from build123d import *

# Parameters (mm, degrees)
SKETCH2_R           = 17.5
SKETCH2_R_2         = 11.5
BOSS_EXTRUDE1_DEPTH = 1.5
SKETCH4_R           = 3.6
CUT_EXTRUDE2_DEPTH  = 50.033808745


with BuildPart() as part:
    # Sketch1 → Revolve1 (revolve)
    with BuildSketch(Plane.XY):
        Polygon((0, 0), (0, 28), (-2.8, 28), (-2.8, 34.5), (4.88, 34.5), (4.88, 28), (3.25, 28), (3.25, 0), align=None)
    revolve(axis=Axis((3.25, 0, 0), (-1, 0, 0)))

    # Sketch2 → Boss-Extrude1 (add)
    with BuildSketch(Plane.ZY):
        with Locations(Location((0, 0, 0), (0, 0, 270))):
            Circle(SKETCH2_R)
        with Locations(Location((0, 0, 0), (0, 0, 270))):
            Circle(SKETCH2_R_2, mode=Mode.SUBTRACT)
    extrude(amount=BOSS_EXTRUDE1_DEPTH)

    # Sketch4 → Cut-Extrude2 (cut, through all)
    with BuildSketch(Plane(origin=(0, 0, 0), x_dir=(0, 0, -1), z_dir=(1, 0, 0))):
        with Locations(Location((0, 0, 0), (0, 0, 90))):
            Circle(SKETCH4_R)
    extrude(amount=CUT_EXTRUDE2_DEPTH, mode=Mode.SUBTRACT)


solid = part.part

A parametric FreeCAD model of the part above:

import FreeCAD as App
import Part
import Sketcher

doc = App.newDocument("Part")
body = doc.addObject("PartDesign::Body", "Body")

# Sketch on XY plane
sketch1 = body.newObject("Sketcher::SketchObject", "Sketch")
sketch1.AttachmentSupport = (doc.getObject("XY_Plane"), [""])
sketch1.MapMode = "FlatFace"
sketch1.addGeometry([
    Part.LineSegment(App.Vector(0, 28, 0), App.Vector(0, 0, 0)),  # 0
    Part.LineSegment(App.Vector(0, 0, 0), App.Vector(3.25, 0, 0)),  # 1
    Part.LineSegment(App.Vector(3.25, 0, 0), App.Vector(3.25, 28, 0)),  # 2
    Part.LineSegment(App.Vector(3.25, 28, 0), App.Vector(4.88, 28, 0)),  # 3
    Part.LineSegment(App.Vector(4.88, 28, 0), App.Vector(4.88, 34.5, 0)),  # 4
    Part.LineSegment(App.Vector(4.88, 34.5, 0), App.Vector(-2.8, 34.5, 0)),  # 5
    Part.LineSegment(App.Vector(-2.8, 34.5, 0), App.Vector(-2.8, 28, 0)),  # 6
    Part.LineSegment(App.Vector(-2.8, 28, 0), App.Vector(0, 28, 0)),  # 7
], False)
sketch1.addConstraint([
    Sketcher.Constraint("Coincident", 0, 2, 1, 1),
    Sketcher.Constraint("Coincident", 1, 2, 2, 1),
    Sketcher.Constraint("Coincident", 2, 2, 3, 1),
    Sketcher.Constraint("Coincident", 3, 2, 4, 1),
    Sketcher.Constraint("Coincident", 4, 2, 5, 1),
    Sketcher.Constraint("Coincident", 5, 2, 6, 1),
    Sketcher.Constraint("Coincident", 6, 2, 7, 1),
    Sketcher.Constraint("Coincident", 7, 2, 0, 1),
    Sketcher.Constraint("Vertical", 0),
    Sketcher.Constraint("Horizontal", 1),
    Sketcher.Constraint("Vertical", 2),
    Sketcher.Constraint("Horizontal", 3),
    Sketcher.Constraint("Vertical", 4),
    Sketcher.Constraint("Horizontal", 5),
    Sketcher.Constraint("Vertical", 6),
    Sketcher.Constraint("Horizontal", 7),
    Sketcher.Constraint("Coincident", 0, 2, -1, 1),
    Sketcher.Constraint("Horizontal", 3, 2, 6, 2),
    Sketcher.Constraint("DistanceY", 0, 2, 0, 1, 28.0),
    Sketcher.Constraint("DistanceX", 7, 1, 7, 2, 2.8),
    Sketcher.Constraint("DistanceY", 4, 1, 4, 2, 6.5),
    Sketcher.Constraint("DistanceX", 1, 1, 1, 2, 3.25),
    Sketcher.Constraint("DistanceX", 3, 1, 3, 2, 1.63),
])
revolution = body.newObject("PartDesign::Revolution", "Revolution")
revolution.Profile = sketch1
revolution.ReferenceAxis = (sketch1, ["H_Axis"])
revolution.Angle = 360

# Sketch on YZ plane
sketch2 = body.newObject("Sketcher::SketchObject", "Sketch001")
sketch2.AttachmentSupport = (doc.getObject("YZ_Plane"), [""])
sketch2.MapMode = "FlatFace"
sketch2.addGeometry([
    Part.Circle(App.Vector(0, 0, 0), App.Vector(0, 0, 1), 17.5),
    Part.Circle(App.Vector(0, 0, 0), App.Vector(0, 0, 1), 11.5),
], False)
sketch2.addConstraint([
    Sketcher.Constraint("Coincident", 0, 3, -1, 1),
    Sketcher.Constraint("Coincident", 1, 3, -1, 1),
    Sketcher.Constraint("Diameter", 0, 35.0),
    Sketcher.Constraint("Diameter", 1, 23.0),
])
pad1 = body.newObject("PartDesign::Pad", "Pad")
pad1.Profile = sketch2
pad1.Length = 1.5
pad1.Reversed = True

# Sketch on YZ plane
sketch3 = body.newObject("Sketcher::SketchObject", "Sketch002")
sketch3.AttachmentSupport = (doc.getObject("YZ_Plane"), [""])
sketch3.MapMode = "FlatFace"
sketch3.addGeometry(Part.Circle(App.Vector(0, 0, 0), App.Vector(0, 0, 1), 3.6), False)
sketch3.addConstraint([
    Sketcher.Constraint("Coincident", 0, 3, -1, 1),
    Sketcher.Constraint("Diameter", 0, 7.2),
])
pocket1 = body.newObject("PartDesign::Pocket", "Pocket")
pocket1.Profile = sketch3
pocket1.Type = "ThroughAll"
pocket1.Reversed = True

doc.recompute()
